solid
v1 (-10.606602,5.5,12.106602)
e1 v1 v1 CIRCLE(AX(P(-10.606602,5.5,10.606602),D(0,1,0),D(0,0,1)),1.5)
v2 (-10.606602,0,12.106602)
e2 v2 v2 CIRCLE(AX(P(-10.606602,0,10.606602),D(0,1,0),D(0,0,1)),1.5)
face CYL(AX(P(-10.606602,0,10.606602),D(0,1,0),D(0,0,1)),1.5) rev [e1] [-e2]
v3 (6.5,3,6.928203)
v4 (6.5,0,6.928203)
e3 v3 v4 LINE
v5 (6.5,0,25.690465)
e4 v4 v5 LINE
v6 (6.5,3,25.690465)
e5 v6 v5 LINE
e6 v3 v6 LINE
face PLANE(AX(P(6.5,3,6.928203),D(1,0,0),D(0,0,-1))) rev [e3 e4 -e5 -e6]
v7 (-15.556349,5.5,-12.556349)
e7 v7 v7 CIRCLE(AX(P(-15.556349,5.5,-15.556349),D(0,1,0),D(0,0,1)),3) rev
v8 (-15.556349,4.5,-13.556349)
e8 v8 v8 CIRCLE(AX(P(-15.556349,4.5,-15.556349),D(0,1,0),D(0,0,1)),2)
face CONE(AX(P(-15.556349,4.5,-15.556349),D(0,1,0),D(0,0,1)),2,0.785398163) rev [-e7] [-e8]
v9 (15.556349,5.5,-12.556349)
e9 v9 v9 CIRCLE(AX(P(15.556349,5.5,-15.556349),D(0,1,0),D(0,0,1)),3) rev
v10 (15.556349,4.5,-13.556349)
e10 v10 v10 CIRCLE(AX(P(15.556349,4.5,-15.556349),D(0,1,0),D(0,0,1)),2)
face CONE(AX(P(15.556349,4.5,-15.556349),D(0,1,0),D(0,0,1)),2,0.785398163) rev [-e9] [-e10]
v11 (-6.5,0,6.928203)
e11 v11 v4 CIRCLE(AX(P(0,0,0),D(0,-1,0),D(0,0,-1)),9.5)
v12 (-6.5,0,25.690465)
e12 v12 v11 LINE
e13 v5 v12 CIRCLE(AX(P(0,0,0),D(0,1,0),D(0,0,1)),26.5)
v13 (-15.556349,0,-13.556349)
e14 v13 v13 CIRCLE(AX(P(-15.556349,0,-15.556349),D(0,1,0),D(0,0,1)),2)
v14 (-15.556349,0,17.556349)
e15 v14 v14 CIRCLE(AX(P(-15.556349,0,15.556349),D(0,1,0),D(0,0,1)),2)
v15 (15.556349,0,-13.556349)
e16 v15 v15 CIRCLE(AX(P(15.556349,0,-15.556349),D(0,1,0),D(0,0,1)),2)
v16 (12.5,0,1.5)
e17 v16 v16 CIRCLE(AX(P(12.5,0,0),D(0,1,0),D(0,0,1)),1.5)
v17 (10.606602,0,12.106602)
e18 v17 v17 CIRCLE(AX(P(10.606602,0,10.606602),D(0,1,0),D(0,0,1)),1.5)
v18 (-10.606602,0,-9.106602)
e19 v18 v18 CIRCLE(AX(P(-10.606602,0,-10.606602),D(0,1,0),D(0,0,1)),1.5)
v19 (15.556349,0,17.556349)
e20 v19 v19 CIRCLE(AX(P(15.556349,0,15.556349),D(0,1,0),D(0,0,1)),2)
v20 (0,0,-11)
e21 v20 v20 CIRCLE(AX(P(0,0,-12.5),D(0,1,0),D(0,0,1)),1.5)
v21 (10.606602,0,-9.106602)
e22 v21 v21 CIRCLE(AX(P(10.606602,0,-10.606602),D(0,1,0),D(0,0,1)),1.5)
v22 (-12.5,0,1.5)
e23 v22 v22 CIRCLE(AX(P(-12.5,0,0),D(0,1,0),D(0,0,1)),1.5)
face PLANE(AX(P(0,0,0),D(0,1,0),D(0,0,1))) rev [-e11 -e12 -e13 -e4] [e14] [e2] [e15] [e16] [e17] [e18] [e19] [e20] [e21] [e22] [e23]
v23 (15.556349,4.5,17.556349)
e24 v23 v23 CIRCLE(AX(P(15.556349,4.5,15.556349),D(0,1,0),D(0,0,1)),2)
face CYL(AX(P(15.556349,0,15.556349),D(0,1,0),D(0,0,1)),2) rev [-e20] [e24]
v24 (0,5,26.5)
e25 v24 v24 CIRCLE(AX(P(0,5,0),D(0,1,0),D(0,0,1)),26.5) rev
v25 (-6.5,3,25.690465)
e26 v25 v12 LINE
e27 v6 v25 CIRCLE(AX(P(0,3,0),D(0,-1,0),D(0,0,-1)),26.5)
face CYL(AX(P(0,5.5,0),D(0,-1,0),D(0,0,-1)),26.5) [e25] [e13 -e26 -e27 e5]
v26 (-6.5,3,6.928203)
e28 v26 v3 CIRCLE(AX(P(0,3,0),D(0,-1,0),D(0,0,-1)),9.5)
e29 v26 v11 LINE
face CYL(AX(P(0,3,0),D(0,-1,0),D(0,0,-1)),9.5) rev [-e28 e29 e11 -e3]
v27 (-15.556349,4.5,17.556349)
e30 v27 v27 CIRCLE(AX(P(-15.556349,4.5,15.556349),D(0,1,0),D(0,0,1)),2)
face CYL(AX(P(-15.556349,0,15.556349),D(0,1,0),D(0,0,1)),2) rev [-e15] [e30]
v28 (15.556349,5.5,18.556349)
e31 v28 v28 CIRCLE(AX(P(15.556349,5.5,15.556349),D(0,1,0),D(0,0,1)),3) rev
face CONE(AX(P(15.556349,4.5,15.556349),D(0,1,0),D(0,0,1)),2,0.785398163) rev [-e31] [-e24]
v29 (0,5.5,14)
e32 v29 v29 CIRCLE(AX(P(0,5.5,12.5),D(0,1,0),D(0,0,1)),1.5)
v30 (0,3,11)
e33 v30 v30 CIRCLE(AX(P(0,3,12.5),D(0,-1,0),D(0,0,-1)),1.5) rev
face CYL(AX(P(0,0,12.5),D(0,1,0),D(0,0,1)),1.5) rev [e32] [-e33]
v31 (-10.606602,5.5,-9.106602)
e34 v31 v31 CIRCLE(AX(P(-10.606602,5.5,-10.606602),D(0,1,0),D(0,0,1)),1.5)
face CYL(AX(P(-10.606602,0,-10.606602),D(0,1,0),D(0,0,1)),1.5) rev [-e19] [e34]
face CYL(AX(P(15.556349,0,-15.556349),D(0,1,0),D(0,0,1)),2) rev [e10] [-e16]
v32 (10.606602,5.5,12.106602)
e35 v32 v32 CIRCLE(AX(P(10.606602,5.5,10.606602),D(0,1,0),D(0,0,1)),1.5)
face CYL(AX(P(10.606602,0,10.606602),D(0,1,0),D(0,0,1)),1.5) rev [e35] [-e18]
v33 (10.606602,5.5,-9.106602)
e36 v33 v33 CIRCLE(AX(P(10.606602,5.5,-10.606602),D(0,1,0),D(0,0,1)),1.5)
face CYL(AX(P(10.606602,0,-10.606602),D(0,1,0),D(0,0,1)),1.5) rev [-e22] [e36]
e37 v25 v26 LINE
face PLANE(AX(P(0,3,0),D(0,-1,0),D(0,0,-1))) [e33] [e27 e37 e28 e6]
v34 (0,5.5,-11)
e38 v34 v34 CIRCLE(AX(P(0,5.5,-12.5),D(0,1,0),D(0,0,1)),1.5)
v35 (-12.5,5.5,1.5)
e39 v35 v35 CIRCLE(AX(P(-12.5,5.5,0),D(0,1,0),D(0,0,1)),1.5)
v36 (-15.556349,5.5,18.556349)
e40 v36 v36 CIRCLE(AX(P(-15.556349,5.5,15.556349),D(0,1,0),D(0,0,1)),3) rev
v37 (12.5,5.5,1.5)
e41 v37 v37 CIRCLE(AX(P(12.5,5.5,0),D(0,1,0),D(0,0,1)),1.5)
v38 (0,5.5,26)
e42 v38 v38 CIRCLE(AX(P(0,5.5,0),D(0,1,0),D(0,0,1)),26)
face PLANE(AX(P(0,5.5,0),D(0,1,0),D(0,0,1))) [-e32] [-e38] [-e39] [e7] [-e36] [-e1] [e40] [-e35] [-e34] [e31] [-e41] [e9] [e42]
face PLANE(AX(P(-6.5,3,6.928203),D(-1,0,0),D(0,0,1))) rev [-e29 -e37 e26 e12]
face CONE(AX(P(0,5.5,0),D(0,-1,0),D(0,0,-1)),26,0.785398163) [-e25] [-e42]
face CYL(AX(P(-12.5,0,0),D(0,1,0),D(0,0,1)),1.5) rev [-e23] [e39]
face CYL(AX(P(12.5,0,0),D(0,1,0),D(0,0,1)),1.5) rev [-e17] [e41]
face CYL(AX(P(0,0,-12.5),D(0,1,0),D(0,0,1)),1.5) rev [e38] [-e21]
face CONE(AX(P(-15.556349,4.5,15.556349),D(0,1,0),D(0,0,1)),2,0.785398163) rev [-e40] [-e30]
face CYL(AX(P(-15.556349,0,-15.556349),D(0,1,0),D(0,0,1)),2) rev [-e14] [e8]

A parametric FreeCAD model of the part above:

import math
import FreeCAD as App
import Part
import Sketcher

V = App.Vector
Q = App.Units.Quantity


def edges_at(feature, points):
    """Names of the edges that pass closest to the given points."""
    edges = feature.Shape.Edges
    near = lambda p: min(range(len(edges)), key=lambda i: edges[i].distToShape(Part.Vertex(*p))[0])
    return sorted({f"Edge{near(p) + 1}" for p in points})

doc = App.newDocument("Part")
params = doc.addObject("Spreadsheet::Sheet", "Params")
for row, (alias, value) in enumerate([
    ("sketch1_diameter", "53 mm"),
    ("pad1_length", "5.5 mm"),
    ("chamfer_size", "0.5 mm"),
    ("sketch2_diameter", "4 mm"),
    ("chamfer2_size", "1 mm"),
    ("sketch3_diameter", "3 mm"),
    ("sketch4_radius", "26.5 mm"),
    ("sketch4_radius2", "9.5 mm"),
    ("pocket3_length", "3 mm"),
], start=1):
    params.set(f"A{row}", alias)
    params.set(f"B{row}", "=" + value)
    params.setAlias(f"B{row}", alias)

body = doc.addObject("PartDesign::Body", "Body")

# Sketch on XZ plane
sketch1 = body.newObject("Sketcher::SketchObject", "Sketch")
sketch1.AttachmentSupport = (doc.getObject("XZ_Plane"), [""])
sketch1.MapMode = "FlatFace"
sketch1.addGeometry(Part.Circle(V(0, 0, 0), V(0, 0, 1), 26.5), False)
sketch1.addConstraint([
    Sketcher.Constraint("Coincident", 0, 3, -1, 1),
    Sketcher.Constraint("Diameter", 0, Q("53 mm")),
])
sketch1.setExpression("Constraints[1]", "Params.sketch1_diameter")
pad1 = body.newObject("PartDesign::Pad", "Pad")
pad1.Profile = sketch1
pad1.setExpression("Length", "Params.pad1_length")
pad1.Reversed = True
doc.recompute()

chamfer = body.newObject("PartDesign::Chamfer", "Chamfer")
chamfer.Base = (pad1, edges_at(pad1, [(0, 5.5, -26.5)]))
chamfer.setExpression("Size", "Params.chamfer_size")

# Sketch on XZ plane
sketch2 = body.newObject("Sketcher::SketchObject", "Sketch001")
sketch2.AttachmentSupport = (doc.getObject("XZ_Plane"), [""])
sketch2.MapMode = "FlatFace"
sketch2.AttachmentOffset = App.Placement(V(0, 0, -5.5), App.Rotation())
sketch2.addGeometry([
    Part.Circle(V(-15.556349, -15.556349, 0), V(0, 0, 1), 2),
    Part.Circle(V(15.556349, -15.556349, 0), V(0, 0, 1), 2),
    Part.Circle(V(15.556349, 15.556349, 0), V(0, 0, 1), 2),
    Part.Circle(V(-15.556349, 15.556349, 0), V(0, 0, 1), 2),
], False)
sketch2.addConstraint([
    Sketcher.Constraint("Equal", 0, 1),
    Sketcher.Constraint("Equal", 1, 2),
    Sketcher.Constraint("Equal", 2, 3),
    Sketcher.Constraint("Symmetric", 0, 3, 2, 3, -1, 1),
    Sketcher.Constraint("Symmetric", 1, 3, 3, 3, -1, 1),
    Sketcher.Constraint("Symmetric", 0, 3, 1, 3, -2),
    Sketcher.Constraint("Diameter", 0, Q("4 mm")),
    Sketcher.Constraint("DistanceX", 0, 3, 1, 3, Q("31.112698 mm")),
    Sketcher.Constraint("DistanceY", 1, 3, 2, 3, Q("31.112698 mm")),
])
sketch2.setExpression("Constraints[6]", "Params.sketch2_diameter")
pocket1 = body.newObject("PartDesign::Pocket", "Pocket")
pocket1.Profile = sketch2
pocket1.Type = "ThroughAll"
pocket1.Reversed = True
doc.recompute()

chamfer2 = body.newObject("PartDesign::Chamfer", "Chamfer001")
chamfer2.Base = (pocket1, edges_at(pocket1, [
    (-15.556, 5.5, 13.556),
    (15.556, 5.5, 13.556),
    (15.556, 5.5, -17.556),
    (-15.556, 5.5, -17.556),
]))
chamfer2.setExpression("Size", "Params.chamfer2_size")

# Sketch on XZ plane
sketch3 = body.newObject("Sketcher::SketchObject", "Sketch002")
sketch3.AttachmentSupport = (doc.getObject("XZ_Plane"), [""])
sketch3.MapMode = "FlatFace"
sketch3.AttachmentOffset = App.Placement(V(0, 0, -5.5), App.Rotation())
sketch3.addGeometry([
    Part.Circle(V(0, -12.5, 0), V(0, 0, 1), 1.5),  # 0
    Part.Circle(V(12.5, 0, 0), V(0, 0, 1), 1.5),  # 1
    Part.Circle(V(0, 12.5, 0), V(0, 0, 1), 1.5),  # 2
    Part.Circle(V(-12.5, 0, 0), V(0, 0, 1), 1.5),  # 3
    Part.Circle(V(10.606602, -10.606602, 0), V(0, 0, 1), 1.5),  # 4
    Part.Circle(V(10.606602, 10.606602, 0), V(0, 0, 1), 1.5),  # 5
    Part.Circle(V(-10.606602, 10.606602, 0), V(0, 0, 1), 1.5),  # 6
    Part.Circle(V(-10.606602, -10.606602, 0), V(0, 0, 1), 1.5),  # 7
], False)
sketch3.addConstraint([
    Sketcher.Constraint("Equal", 0, 1),
    Sketcher.Constraint("Equal", 1, 2),
    Sketcher.Constraint("Equal", 2, 3),
    Sketcher.Constraint("Equal", 3, 4),
    Sketcher.Constraint("Equal", 4, 5),
    Sketcher.Constraint("Equal", 5, 6),
    Sketcher.Constraint("Equal", 6, 7),
    Sketcher.Constraint("Symmetric", 0, 3, 2, 3, -1, 1),
    Sketcher.Constraint("Symmetric", 1, 3, 3, 3, -1, 1),
    Sketcher.Constraint("Symmetric", 4, 3, 6, 3, -1, 1),
    Sketcher.Constraint("Symmetric", 5, 3, 7, 3, -1, 1),
    Sketcher.Constraint("Symmetric", 5, 3, 6, 3, -2),
    Sketcher.Constraint("PointOnObject", 0, 3, -2),
    Sketcher.Constraint("PointOnObject", 1, 3, -1),
    Sketcher.Constraint("Diameter", 0, Q("3 mm")),
    Sketcher.Constraint("DistanceY", 0, 3, 2, 3, Q("25 mm")),
    Sketcher.Constraint("DistanceX", 3, 3, 1, 3, Q("25 mm")),
    Sketcher.Constraint("DistanceX", -1, 1, 4, 3, Q("10.606602 mm")),
    Sketcher.Constraint("DistanceY", 4, 3, -1, 1, Q("10.606602 mm")),
])
sketch3.setExpression("Constraints[14]", "Params.sketch3_diameter")
pocket2 = body.newObject("PartDesign::Pocket", "Pocket001")
pocket2.Profile = sketch3
pocket2.Type = "ThroughAll"
pocket2.Reversed = True

# Sketch on XZ plane
sketch4 = body.newObject("Sketcher::SketchObject", "Sketch003")
sketch4.AttachmentSupport = (doc.getObject("XZ_Plane"), [""])
sketch4.MapMode = "FlatFace"
sketch4.addGeometry([
    Part.LineSegment(V(6.5, 6.928203, 0), V(6.5, 25.690465, 0)),
    Part.ArcOfCircle(Part.Circle(V(0, 0, 0), V(0, 0, 1), 26.5), math.radians(75.80144), math.radians(104.19856)),
    Part.LineSegment(V(-6.5, 25.690465, 0), V(-6.5, 6.928203, 0)),
    Part.ArcOfCircle(Part.Circle(V(0, 0, 0), V(0, 0, 1), 9.5), math.radians(133.173551), math.radians(406.826449)),
], False)
sketch4.addConstraint([
    Sketcher.Constraint("Coincident", 0, 2, 1, 1),
    Sketcher.Constraint("Coincident", 1, 2, 2, 1),
    Sketcher.Constraint("Coincident", 2, 2, 3, 1),
    Sketcher.Constraint("Coincident", 3, 2, 0, 1),
    Sketcher.Constraint("Vertical", 0),
    Sketcher.Constraint("Vertical", 2),
    Sketcher.Constraint("Coincident", 1, 3, -1, 1),
    Sketcher.Constraint("Coincident", 3, 3, -1, 1),
    Sketcher.Constraint("Horizontal", 0, 2, 1, 2),
    Sketcher.Constraint("Radius", 1, Q("26.5 mm")),
    Sketcher.Constraint("Radius", 3, Q("9.5 mm")),
    Sketcher.Constraint("DistanceX", 1, 2, 0, 2, Q("13 mm")),
])
sketch4.setExpression("Constraints[9]", "Params.sketch4_radius")
sketch4.setExpression("Constraints[10]", "Params.sketch4_radius2")
pocket3 = body.newObject("PartDesign::Pocket", "Pocket002")
pocket3.Profile = sketch4
pocket3.setExpression("Length", "Params.pocket3_length")

doc.recompute()
